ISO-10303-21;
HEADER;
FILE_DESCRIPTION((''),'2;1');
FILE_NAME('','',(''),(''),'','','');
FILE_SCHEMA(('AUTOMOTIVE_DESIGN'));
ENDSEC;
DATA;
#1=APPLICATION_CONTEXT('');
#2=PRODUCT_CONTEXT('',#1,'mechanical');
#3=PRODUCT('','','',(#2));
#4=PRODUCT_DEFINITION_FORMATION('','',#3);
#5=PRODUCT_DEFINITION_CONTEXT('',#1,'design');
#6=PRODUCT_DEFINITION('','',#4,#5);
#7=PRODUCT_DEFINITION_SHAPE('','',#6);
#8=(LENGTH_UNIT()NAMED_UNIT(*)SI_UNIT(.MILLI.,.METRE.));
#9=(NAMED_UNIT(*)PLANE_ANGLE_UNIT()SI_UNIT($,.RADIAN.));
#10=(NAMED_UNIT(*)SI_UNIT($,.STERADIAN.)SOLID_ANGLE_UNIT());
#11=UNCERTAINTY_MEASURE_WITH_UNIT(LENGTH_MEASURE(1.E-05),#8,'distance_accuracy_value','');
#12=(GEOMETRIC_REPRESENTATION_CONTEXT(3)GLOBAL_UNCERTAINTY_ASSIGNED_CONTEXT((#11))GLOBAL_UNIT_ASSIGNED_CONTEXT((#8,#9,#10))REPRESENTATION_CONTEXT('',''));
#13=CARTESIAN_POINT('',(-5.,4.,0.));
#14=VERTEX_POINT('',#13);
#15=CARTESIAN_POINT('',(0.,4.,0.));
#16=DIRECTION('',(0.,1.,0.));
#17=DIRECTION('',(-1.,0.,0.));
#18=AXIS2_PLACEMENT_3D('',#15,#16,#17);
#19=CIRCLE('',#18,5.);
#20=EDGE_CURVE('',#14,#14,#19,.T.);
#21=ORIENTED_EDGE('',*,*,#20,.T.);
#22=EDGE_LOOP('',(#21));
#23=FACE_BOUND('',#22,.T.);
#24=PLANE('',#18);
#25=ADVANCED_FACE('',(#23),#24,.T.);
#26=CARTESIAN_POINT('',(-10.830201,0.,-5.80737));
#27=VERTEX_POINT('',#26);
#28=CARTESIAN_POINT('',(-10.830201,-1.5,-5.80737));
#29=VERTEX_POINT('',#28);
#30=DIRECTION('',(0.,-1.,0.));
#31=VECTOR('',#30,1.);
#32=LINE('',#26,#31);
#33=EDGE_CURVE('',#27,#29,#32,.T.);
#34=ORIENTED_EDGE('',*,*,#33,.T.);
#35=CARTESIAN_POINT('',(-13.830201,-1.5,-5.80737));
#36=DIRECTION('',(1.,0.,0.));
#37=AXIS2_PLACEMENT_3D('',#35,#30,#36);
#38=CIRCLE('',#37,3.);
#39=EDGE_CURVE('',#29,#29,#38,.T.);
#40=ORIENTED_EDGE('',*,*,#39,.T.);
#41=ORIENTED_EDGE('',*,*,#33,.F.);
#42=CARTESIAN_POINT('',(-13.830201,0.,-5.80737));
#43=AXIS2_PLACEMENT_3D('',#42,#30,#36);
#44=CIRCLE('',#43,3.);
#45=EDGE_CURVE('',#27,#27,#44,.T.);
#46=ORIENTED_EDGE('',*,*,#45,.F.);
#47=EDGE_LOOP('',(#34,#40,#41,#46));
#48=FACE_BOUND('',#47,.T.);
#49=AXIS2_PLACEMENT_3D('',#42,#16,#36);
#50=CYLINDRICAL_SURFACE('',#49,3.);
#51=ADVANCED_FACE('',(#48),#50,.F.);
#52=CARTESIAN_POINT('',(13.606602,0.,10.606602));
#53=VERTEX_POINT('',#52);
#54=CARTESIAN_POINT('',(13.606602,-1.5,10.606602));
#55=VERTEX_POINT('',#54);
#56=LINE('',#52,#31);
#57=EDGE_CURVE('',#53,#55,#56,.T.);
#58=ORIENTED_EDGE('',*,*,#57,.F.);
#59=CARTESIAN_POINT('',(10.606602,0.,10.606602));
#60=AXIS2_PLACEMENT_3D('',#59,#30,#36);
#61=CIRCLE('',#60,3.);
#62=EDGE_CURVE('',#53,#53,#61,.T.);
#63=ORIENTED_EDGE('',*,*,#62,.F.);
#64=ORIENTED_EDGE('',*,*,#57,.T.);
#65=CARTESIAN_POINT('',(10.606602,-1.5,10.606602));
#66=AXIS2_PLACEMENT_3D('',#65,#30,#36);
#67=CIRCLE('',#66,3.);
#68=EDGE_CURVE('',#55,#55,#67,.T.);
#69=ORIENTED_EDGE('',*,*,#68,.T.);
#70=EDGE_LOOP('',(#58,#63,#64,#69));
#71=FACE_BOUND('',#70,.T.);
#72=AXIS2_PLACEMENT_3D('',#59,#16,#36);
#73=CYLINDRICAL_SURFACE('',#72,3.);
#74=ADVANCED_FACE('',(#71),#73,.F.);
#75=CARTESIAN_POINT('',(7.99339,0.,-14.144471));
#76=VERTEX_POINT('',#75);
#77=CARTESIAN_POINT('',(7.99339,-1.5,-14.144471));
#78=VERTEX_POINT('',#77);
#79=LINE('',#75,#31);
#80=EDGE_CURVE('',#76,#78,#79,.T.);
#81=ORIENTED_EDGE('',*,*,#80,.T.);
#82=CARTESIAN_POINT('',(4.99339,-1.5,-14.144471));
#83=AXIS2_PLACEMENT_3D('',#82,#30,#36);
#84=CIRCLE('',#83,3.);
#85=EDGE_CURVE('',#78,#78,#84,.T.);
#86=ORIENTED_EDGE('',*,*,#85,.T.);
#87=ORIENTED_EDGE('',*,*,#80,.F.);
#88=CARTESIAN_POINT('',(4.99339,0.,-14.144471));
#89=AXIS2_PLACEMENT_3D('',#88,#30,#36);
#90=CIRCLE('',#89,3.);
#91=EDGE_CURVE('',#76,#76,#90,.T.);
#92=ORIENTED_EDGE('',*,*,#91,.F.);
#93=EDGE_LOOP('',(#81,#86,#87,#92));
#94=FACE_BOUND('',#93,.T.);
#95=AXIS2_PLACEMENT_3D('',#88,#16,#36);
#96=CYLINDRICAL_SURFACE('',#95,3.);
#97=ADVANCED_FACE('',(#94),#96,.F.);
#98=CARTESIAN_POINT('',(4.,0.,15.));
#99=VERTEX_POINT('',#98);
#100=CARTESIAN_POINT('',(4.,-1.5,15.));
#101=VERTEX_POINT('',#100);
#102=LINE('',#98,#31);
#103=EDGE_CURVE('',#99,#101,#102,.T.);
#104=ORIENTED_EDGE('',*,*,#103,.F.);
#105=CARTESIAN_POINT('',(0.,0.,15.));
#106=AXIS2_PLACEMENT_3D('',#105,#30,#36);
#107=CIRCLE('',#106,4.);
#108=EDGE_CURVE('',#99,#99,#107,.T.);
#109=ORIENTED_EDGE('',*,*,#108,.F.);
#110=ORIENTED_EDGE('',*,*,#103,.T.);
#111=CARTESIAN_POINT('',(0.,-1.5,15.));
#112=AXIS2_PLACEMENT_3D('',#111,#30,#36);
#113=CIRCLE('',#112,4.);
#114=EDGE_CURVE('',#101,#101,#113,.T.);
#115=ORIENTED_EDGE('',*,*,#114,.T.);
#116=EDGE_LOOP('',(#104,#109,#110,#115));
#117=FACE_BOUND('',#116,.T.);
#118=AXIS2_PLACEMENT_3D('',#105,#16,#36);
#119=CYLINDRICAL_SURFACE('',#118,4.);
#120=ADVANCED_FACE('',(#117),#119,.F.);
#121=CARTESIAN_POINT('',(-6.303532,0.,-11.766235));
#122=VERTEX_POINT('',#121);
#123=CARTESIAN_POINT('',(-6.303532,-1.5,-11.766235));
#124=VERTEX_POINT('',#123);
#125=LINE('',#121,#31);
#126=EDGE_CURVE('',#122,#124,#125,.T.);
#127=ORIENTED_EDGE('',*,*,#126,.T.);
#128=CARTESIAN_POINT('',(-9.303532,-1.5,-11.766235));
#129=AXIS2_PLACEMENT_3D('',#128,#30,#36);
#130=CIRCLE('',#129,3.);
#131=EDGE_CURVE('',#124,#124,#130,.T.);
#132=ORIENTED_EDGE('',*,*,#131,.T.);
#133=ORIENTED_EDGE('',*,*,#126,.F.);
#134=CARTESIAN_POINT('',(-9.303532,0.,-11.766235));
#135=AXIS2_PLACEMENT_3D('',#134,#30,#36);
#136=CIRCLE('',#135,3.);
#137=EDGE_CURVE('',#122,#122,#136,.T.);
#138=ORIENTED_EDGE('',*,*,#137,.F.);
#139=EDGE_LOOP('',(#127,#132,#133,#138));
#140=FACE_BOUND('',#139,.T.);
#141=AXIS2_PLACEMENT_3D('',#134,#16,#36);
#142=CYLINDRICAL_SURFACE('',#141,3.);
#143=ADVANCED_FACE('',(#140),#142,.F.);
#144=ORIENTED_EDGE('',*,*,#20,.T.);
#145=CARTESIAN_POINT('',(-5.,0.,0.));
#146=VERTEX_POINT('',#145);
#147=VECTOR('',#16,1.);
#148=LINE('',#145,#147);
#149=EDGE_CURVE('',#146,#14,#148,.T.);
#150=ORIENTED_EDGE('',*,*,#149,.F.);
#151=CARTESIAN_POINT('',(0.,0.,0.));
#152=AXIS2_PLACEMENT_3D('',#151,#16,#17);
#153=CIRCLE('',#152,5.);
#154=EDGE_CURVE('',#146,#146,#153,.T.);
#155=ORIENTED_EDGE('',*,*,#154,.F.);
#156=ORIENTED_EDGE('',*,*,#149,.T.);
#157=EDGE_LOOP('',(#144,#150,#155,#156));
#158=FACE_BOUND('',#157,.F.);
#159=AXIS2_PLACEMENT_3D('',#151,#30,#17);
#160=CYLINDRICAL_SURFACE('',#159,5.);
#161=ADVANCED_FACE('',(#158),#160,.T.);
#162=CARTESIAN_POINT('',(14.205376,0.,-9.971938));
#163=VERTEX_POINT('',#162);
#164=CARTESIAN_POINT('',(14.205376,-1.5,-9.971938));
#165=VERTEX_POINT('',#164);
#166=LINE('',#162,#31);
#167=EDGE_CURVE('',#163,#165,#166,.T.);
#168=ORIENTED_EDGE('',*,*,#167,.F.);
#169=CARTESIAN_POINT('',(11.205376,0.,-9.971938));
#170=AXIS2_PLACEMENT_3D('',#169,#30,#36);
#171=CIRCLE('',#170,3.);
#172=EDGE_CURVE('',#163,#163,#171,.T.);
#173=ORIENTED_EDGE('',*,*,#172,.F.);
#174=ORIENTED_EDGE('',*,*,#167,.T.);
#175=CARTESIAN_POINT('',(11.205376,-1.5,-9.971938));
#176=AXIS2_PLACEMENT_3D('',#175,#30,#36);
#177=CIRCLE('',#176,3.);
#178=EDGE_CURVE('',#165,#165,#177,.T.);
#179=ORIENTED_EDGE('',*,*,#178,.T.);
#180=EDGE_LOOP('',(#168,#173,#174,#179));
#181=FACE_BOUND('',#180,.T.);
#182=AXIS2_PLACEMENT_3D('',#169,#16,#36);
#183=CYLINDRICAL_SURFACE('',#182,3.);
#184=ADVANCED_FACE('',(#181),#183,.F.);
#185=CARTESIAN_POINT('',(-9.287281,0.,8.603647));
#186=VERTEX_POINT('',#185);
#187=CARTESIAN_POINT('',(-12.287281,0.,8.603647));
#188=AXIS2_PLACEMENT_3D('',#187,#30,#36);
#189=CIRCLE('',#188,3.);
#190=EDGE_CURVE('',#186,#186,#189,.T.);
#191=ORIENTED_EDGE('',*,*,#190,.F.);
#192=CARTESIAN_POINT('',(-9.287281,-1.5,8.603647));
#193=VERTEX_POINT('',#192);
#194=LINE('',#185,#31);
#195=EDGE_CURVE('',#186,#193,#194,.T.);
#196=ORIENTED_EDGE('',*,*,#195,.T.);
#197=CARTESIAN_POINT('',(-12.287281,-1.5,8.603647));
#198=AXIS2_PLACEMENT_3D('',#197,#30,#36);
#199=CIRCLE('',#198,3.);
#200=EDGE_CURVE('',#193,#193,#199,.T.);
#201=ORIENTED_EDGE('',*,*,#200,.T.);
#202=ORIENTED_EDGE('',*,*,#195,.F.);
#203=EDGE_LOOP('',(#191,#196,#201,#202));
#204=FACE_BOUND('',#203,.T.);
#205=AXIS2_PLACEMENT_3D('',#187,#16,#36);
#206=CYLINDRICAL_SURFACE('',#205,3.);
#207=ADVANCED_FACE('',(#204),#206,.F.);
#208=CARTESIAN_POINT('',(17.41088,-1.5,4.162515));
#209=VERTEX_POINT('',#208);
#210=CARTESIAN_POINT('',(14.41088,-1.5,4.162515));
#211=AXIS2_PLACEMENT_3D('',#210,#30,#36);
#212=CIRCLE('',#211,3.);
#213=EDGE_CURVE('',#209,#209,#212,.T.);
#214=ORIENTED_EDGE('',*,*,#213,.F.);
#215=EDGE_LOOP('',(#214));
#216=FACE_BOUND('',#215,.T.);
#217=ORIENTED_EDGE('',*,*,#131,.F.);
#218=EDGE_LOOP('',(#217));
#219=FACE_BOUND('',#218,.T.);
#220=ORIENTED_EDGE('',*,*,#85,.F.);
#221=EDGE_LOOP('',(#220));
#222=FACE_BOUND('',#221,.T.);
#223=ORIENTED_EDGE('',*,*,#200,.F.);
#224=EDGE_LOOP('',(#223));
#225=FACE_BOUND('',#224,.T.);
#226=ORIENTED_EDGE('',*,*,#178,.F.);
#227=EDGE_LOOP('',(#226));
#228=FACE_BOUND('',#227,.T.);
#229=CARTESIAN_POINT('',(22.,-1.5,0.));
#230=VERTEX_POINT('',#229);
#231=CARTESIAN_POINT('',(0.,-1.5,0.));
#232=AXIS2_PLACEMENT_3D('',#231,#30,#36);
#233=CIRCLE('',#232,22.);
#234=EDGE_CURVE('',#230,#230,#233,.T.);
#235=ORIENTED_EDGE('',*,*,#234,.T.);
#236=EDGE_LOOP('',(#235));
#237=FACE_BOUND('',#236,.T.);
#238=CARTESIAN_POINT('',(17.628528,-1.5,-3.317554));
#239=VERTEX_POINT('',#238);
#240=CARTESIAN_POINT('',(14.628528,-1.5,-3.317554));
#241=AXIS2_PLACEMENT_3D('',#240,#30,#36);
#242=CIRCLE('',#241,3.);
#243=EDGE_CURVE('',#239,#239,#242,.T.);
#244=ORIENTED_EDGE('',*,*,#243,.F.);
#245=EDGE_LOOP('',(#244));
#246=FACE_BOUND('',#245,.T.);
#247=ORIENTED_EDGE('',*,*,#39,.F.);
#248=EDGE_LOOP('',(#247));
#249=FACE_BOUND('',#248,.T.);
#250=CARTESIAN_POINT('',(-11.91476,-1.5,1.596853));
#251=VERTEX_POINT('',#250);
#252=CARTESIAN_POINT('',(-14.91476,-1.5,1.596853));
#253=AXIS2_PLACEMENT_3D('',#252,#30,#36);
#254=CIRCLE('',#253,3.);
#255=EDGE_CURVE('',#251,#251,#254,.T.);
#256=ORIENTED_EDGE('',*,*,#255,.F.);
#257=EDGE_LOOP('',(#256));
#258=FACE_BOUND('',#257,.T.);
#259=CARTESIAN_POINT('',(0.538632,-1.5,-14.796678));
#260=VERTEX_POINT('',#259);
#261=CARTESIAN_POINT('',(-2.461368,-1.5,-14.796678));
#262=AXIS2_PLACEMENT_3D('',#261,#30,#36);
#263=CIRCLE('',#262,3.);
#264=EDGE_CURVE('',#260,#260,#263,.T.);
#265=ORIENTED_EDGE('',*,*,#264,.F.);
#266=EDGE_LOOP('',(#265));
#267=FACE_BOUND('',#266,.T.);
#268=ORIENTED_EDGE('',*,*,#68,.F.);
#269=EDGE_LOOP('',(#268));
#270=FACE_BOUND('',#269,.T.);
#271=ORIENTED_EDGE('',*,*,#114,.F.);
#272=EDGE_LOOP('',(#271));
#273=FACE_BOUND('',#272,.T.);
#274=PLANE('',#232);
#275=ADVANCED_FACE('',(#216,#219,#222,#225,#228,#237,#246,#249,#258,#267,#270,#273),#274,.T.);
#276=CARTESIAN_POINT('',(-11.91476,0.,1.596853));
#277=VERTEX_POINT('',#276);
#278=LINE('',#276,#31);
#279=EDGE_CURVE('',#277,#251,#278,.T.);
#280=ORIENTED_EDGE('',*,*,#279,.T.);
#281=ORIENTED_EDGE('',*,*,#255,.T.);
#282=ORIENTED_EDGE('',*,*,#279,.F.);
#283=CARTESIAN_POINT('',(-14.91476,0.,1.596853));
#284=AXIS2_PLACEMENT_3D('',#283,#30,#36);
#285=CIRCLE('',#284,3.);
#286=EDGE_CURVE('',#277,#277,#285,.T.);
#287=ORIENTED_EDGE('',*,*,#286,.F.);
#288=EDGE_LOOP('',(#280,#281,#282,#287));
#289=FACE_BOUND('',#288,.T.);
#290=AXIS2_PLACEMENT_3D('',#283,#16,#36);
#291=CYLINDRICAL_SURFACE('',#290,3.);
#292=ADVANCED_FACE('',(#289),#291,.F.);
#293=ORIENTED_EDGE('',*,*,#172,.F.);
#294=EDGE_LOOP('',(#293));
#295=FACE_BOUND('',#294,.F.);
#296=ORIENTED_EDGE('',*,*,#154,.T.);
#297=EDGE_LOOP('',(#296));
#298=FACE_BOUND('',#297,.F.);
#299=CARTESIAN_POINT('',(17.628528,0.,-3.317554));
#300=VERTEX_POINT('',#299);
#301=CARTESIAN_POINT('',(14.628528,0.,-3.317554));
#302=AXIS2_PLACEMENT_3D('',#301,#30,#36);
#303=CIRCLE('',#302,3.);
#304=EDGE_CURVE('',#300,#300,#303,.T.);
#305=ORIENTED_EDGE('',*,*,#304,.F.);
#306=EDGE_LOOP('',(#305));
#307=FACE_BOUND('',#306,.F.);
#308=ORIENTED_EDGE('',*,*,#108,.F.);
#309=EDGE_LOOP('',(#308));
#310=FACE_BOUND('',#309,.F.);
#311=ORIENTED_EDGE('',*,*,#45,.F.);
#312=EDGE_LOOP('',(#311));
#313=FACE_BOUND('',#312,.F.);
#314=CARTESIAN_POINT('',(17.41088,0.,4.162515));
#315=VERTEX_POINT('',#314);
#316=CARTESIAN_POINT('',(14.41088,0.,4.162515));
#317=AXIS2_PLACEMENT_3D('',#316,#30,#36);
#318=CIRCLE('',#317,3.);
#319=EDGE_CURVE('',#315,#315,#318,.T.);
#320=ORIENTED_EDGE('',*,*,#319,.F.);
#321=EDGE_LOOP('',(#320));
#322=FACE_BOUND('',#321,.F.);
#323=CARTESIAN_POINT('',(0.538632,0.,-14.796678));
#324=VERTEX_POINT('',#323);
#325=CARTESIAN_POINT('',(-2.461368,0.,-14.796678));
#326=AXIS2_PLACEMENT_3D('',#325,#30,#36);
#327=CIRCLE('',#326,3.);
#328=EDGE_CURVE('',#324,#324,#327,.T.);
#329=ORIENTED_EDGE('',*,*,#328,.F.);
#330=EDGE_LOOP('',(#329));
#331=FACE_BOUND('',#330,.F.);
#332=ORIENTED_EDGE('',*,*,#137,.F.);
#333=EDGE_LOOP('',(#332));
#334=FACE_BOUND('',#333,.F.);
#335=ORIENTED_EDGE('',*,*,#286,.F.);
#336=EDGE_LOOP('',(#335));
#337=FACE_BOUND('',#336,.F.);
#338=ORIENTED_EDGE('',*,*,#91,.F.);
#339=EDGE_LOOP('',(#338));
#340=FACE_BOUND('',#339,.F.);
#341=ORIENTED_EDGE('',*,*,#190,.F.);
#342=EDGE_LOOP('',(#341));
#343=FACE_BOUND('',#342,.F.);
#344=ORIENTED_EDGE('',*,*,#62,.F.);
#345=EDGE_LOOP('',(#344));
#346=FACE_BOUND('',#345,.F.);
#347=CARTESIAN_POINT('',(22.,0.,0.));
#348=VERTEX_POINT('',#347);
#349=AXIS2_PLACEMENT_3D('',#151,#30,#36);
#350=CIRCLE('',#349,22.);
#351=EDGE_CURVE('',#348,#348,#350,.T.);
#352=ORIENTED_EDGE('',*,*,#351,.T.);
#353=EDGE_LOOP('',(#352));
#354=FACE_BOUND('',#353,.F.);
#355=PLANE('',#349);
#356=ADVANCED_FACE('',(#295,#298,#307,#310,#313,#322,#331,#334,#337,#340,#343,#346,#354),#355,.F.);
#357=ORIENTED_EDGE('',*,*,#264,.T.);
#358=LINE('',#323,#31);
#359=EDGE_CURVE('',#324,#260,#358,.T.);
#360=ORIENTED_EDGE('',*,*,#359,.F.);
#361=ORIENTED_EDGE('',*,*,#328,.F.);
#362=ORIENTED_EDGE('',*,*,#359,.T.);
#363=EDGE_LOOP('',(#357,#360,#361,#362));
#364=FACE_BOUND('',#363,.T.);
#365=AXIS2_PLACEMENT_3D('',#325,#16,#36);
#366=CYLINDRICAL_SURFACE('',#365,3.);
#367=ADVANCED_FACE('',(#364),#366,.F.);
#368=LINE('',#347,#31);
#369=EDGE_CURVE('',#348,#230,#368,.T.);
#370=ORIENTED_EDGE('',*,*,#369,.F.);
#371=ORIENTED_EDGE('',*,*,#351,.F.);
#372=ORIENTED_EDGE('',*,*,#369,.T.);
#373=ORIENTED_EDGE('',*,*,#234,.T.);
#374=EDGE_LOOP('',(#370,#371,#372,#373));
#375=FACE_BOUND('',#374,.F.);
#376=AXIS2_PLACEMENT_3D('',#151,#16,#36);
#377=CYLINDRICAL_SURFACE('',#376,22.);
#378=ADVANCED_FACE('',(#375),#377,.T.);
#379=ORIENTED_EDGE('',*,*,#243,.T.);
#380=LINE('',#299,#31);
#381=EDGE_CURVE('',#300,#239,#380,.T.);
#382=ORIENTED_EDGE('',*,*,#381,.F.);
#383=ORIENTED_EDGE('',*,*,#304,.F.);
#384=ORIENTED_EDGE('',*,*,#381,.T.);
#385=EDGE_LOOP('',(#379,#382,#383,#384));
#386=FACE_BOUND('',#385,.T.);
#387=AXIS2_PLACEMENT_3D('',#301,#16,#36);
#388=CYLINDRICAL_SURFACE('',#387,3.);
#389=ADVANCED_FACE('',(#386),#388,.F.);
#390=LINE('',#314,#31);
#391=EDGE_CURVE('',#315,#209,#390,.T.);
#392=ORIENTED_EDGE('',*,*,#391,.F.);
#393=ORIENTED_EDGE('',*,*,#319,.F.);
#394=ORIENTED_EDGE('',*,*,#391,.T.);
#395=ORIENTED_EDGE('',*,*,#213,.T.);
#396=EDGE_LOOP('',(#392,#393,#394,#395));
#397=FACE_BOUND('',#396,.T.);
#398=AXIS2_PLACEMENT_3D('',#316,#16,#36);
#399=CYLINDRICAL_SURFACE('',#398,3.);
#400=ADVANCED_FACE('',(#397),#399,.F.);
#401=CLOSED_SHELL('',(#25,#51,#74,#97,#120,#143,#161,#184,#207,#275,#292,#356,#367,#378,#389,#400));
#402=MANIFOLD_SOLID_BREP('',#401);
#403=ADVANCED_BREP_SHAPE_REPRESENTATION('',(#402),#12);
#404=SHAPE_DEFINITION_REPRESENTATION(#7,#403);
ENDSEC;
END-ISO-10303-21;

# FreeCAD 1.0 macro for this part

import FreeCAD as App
import Part
import Sketcher
from FreeCAD import Vector

doc = App.newDocument("Part")
body = doc.addObject("PartDesign::Body", "Body")

# Sketch on XZ plane
sketch1 = body.newObject("Sketcher::SketchObject", "Sketch")
sketch1.AttachmentSupport = (doc.getObject("XZ_Plane"), [""])
sketch1.MapMode = "FlatFace"
sketch1.addGeometry([
    Part.Circle(Vector(0, 0, 0), Vector(0, 0, 1), 22),  # 0
    Part.Circle(Vector(-9.3, -11.8, 0), Vector(0, 0, 1), 3),  # 1
    Part.Circle(Vector(-2.5, -14.8, 0), Vector(0, 0, 1), 3),  # 2
    Part.Circle(Vector(-13.8, -5.8, 0), Vector(0, 0, 1), 3),  # 3
    Part.Circle(Vector(5, -14.1, 0), Vector(0, 0, 1), 3),  # 4
    Part.Circle(Vector(11.2, -10, 0), Vector(0, 0, 1), 3),  # 5
    Part.Circle(Vector(14.6, -3.3, 0), Vector(0, 0, 1), 3),  # 6
    Part.Circle(Vector(-14.9, 1.6, 0), Vector(0, 0, 1), 3),  # 7
    Part.Circle(Vector(-12.3, 8.6, 0), Vector(0, 0, 1), 3),  # 8
    Part.Circle(Vector(14.4, 4.2, 0), Vector(0, 0, 1), 3),  # 9
    Part.Circle(Vector(0, 15, 0), Vector(0, 0, 1), 4),  # 10
    Part.Circle(Vector(10.6, 10.6, 0), Vector(0, 0, 1), 3),  # 11
], False)
sketch1.addConstraint([
    Sketcher.Constraint("Coincident", 0, 3, -1, 1),
    Sketcher.Constraint("Equal", 1, 2),
    Sketcher.Constraint("Equal", 2, 3),
    Sketcher.Constraint("Equal", 3, 4),
    Sketcher.Constraint("Equal", 4, 5),
    Sketcher.Constraint("Equal", 5, 6),
    Sketcher.Constraint("Equal", 6, 7),
    Sketcher.Constraint("Equal", 7, 8),
    Sketcher.Constraint("Equal", 8, 9),
    Sketcher.Constraint("Equal", 9, 11),
    Sketcher.Constraint("PointOnObject", 10, 3, -2),
    Sketcher.Constraint("Diameter", 0, 44.0),
    Sketcher.Constraint("Diameter", 1, 6.0),
    Sketcher.Constraint("Diameter", 10, 8.0),
    Sketcher.Constraint("DistanceY", -1, 1, 10, 3, 15.0),
    Sketcher.Constraint("DistanceX", 3, 3, -1, 1, 13.830201),
    Sketcher.Constraint("DistanceY", 4, 3, 3, 3, 8.337101),
    Sketcher.Constraint("DistanceY", 3, 3, -1, 1, 5.80737),
    Sketcher.Constraint("DistanceX", -1, 1, 4, 3, 4.99339),
    Sketcher.Constraint("DistanceX", 7, 3, -1, 1, 14.91476),
    Sketcher.Constraint("DistanceX", 8, 3, -1, 1, 12.287281),
    Sketcher.Constraint("DistanceX", -1, 1, 9, 3, 14.41088),
    Sketcher.Constraint("DistanceX", 3, 3, 1, 3, 4.526669),
    Sketcher.Constraint("DistanceY", 2, 3, 3, 3, 8.989308),
    Sketcher.Constraint("DistanceY", 2, 3, 5, 3, 4.82474),
    Sketcher.Constraint("DistanceX", 5, 3, 6, 3, 3.423152),
    Sketcher.Constraint("DistanceX", 1, 3, 6, 3, 23.93206),
    Sketcher.Constraint("DistanceY", 1, 3, 6, 3, 8.448681),
    Sketcher.Constraint("DistanceX", 7, 3, 2, 3, 12.453392),
    Sketcher.Constraint("DistanceY", 2, 3, 7, 3, 16.393531),
    Sketcher.Constraint("DistanceY", 6, 3, 9, 3, 7.480069),
    Sketcher.Constraint("DistanceX", 11, 3, 9, 3, 3.804278),
    Sketcher.Constraint("DistanceY", 5, 3, 11, 3, 20.57854),
    Sketcher.Constraint("DistanceY", 1, 3, -1, 1, 11.766235),
    Sketcher.Constraint("DistanceY", -1, 1, 8, 3, 8.603647),
])
pad1 = body.newObject("PartDesign::Pad", "Pad")
pad1.Profile = sketch1
pad1.Length = 1.5

# Sketch on XZ plane
sketch2 = body.newObject("Sketcher::SketchObject", "Sketch001")
sketch2.AttachmentSupport = (doc.getObject("XZ_Plane"), [""])
sketch2.MapMode = "FlatFace"
sketch2.addGeometry(Part.Circle(Vector(0, 0, 0), Vector(0, 0, 1), 5), False)
sketch2.addConstraint([
    Sketcher.Constraint("Coincident", 0, 3, -1, 1),
    Sketcher.Constraint("Diameter", 0, 10.0),
])
pad2 = body.newObject("PartDesign::Pad", "Pad001")
pad2.Profile = sketch2
pad2.Length = 4
pad2.Reversed = True

doc.recompute()
